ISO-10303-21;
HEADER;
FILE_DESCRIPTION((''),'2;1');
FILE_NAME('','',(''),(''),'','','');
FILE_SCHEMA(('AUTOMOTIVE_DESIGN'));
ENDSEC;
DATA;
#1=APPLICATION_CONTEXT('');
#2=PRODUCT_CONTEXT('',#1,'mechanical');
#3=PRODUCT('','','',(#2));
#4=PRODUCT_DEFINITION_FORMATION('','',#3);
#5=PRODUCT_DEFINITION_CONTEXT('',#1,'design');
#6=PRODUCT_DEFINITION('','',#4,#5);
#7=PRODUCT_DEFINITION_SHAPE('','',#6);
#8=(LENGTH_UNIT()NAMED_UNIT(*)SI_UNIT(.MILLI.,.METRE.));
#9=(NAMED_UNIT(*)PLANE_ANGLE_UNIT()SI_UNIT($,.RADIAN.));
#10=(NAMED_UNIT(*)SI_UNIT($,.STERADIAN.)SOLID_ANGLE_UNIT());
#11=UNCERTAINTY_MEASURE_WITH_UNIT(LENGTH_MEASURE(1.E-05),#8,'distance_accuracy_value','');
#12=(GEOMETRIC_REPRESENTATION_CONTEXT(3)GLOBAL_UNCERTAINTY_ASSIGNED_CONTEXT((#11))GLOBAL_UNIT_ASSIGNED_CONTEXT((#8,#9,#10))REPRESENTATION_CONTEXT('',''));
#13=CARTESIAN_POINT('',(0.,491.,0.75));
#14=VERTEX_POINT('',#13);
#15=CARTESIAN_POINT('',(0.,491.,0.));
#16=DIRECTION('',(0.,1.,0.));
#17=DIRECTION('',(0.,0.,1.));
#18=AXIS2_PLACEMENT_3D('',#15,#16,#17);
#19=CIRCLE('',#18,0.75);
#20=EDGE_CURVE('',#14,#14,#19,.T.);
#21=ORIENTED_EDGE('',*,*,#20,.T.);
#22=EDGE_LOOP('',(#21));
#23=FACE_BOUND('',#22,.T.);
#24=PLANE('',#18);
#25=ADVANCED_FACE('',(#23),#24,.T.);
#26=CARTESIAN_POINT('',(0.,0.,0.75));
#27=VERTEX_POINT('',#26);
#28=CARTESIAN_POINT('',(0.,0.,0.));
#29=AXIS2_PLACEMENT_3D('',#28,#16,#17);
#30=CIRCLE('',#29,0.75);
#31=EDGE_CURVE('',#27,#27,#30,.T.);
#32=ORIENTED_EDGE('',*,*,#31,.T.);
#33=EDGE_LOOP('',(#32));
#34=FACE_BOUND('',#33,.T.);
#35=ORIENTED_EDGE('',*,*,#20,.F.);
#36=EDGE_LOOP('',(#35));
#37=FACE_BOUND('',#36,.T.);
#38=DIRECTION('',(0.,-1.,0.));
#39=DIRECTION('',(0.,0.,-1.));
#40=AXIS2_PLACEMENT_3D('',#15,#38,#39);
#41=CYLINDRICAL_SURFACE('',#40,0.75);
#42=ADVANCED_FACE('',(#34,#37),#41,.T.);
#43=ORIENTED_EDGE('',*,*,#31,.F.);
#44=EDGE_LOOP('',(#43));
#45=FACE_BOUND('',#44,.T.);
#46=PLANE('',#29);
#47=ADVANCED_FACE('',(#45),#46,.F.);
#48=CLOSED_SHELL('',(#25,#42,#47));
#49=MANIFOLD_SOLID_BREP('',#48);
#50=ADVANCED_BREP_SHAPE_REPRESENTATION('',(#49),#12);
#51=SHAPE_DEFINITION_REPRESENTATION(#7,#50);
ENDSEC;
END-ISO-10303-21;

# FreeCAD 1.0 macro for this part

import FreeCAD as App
import Part
import Sketcher
Q = App.Units.Quantity

doc = App.newDocument("Part")
body = doc.addObject("PartDesign::Body", "Body")

# Sketch on XZ plane
sketch1 = body.newObject("Sketcher::SketchObject", "Sketch")
sketch1.AttachmentSupport = (doc.getObject("XZ_Plane"), [""])
sketch1.MapMode = "FlatFace"
sketch1.addGeometry(Part.Circle(App.Vector(0, 0, 0), App.Vector(0, 0, 1), 0.8), False)
sketch1.addConstraint(Sketcher.Constraint("Coincident", 0, 3, -1, 1))
sketch1.addConstraint(Sketcher.Constraint("Diameter", 0, Q("1.5 mm")))
pad1 = body.newObject("PartDesign::Pad", "Pad")
pad1.Profile = sketch1
pad1.Length = 491
pad1.Reversed = True

doc.recompute()
